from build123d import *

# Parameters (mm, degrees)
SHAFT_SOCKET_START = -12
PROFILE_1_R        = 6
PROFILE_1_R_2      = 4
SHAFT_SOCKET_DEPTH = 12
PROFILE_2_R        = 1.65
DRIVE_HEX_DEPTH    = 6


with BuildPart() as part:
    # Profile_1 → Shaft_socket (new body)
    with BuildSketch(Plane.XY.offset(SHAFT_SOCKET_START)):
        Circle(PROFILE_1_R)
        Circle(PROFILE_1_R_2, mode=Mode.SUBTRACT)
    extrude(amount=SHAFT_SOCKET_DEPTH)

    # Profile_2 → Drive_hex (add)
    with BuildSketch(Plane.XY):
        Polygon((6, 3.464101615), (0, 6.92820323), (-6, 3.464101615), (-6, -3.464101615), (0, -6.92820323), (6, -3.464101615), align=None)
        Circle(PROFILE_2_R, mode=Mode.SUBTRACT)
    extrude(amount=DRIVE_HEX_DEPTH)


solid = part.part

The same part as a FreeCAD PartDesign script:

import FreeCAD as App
import Part
import Sketcher
Q = App.Units.Quantity


def add_polygon(sketch, points):
    """Adds a closed chain of lines whose ends are joined by coincident constraints."""
    first, n = sketch.GeometryCount, len(points)
    for a, b in zip(points, points[1:] + points[:1]):
        sketch.addGeometry(Part.LineSegment(App.Vector(*a, 0), App.Vector(*b, 0)), False)
    for i in range(n):
        sketch.addConstraint(Sketcher.Constraint("Coincident", first + i, 2, first + (i + 1) % n, 1))

doc = App.newDocument("Part")
body = doc.addObject("PartDesign::Body", "Body")

# Sketch on XY plane
sketch1 = doc.addObject("Sketcher::SketchObject", "Sketch")
body.addObject(sketch1)
sketch1.AttachmentSupport = (doc.XY_Plane, [""])
sketch1.MapMode = "FlatFace"
sketch1.AttachmentOffset = App.Placement(App.Vector(0, 0, -12), App.Rotation())
sketch1.addGeometry(Part.Circle(App.Vector(0, 0, 0), App.Vector(0, 0, 1), 6), False)
sketch1.addGeometry(Part.Circle(App.Vector(0, 0, 0), App.Vector(0, 0, 1), 4), False)
sketch1.addConstraint(Sketcher.Constraint("Coincident", 0, 3, -1, 1))
sketch1.addConstraint(Sketcher.Constraint("Coincident", 1, 3, -1, 1))
sketch1.addConstraint(Sketcher.Constraint("Diameter", 0, Q("12 mm")))
sketch1.addConstraint(Sketcher.Constraint("Diameter", 1, Q("8 mm")))
pad1 = doc.addObject("PartDesign::Pad", "Pad")
body.addObject(pad1)
pad1.Profile = sketch1
pad1.Length = 12

# Sketch on XY plane
sketch2 = doc.addObject("Sketcher::SketchObject", "Sketch001")
body.addObject(sketch2)
sketch2.AttachmentSupport = (doc.XY_Plane, [""])
sketch2.MapMode = "FlatFace"
add_polygon(sketch2, [(6, 3.5), (0, 6.9), (-6, 3.5), (-6, -3.5), (0, -6.9), (6, -3.5)])  # lines 0-5
sketch2.addGeometry(Part.Circle(App.Vector(0, 0, 0), App.Vector(0, 0, 1), 1.6), False)  # 6
sketch2.addConstraint(Sketcher.Constraint("Vertical", 2))
sketch2.addConstraint(Sketcher.Constraint("Vertical", 5))
sketch2.addConstraint(Sketcher.Constraint("Coincident", 6, 3, -1, 1))
sketch2.addConstraint(Sketcher.Constraint("Symmetric", 0, 2, 3, 2, -1, 1))
sketch2.addConstraint(Sketcher.Constraint("Symmetric", 1, 2, 4, 2, -1, 1))
sketch2.addConstraint(Sketcher.Constraint("PointOnObject", 0, 2, -2))
sketch2.addConstraint(Sketcher.Constraint("Parallel", 0, 3))
sketch2.addConstraint(Sketcher.Constraint("Horizontal", 2, 2, 4, 2))
sketch2.addConstraint(Sketcher.Constraint("Diameter", 6, Q("3.3 mm")))
sketch2.addConstraint(Sketcher.Constraint("Angle", 0, Q("150 deg")))
sketch2.addConstraint(Sketcher.Constraint("DistanceX", 1, 2, -1, 1, Q("6 mm")))
sketch2.addConstraint(Sketcher.Constraint("DistanceY", -1, 1, 1, 2, Q("3.464102 mm")))
pad2 = doc.addObject("PartDesign::Pad", "Pad001")
body.addObject(pad2)
pad2.Profile = sketch2
pad2.Length = 6

doc.recompute()
